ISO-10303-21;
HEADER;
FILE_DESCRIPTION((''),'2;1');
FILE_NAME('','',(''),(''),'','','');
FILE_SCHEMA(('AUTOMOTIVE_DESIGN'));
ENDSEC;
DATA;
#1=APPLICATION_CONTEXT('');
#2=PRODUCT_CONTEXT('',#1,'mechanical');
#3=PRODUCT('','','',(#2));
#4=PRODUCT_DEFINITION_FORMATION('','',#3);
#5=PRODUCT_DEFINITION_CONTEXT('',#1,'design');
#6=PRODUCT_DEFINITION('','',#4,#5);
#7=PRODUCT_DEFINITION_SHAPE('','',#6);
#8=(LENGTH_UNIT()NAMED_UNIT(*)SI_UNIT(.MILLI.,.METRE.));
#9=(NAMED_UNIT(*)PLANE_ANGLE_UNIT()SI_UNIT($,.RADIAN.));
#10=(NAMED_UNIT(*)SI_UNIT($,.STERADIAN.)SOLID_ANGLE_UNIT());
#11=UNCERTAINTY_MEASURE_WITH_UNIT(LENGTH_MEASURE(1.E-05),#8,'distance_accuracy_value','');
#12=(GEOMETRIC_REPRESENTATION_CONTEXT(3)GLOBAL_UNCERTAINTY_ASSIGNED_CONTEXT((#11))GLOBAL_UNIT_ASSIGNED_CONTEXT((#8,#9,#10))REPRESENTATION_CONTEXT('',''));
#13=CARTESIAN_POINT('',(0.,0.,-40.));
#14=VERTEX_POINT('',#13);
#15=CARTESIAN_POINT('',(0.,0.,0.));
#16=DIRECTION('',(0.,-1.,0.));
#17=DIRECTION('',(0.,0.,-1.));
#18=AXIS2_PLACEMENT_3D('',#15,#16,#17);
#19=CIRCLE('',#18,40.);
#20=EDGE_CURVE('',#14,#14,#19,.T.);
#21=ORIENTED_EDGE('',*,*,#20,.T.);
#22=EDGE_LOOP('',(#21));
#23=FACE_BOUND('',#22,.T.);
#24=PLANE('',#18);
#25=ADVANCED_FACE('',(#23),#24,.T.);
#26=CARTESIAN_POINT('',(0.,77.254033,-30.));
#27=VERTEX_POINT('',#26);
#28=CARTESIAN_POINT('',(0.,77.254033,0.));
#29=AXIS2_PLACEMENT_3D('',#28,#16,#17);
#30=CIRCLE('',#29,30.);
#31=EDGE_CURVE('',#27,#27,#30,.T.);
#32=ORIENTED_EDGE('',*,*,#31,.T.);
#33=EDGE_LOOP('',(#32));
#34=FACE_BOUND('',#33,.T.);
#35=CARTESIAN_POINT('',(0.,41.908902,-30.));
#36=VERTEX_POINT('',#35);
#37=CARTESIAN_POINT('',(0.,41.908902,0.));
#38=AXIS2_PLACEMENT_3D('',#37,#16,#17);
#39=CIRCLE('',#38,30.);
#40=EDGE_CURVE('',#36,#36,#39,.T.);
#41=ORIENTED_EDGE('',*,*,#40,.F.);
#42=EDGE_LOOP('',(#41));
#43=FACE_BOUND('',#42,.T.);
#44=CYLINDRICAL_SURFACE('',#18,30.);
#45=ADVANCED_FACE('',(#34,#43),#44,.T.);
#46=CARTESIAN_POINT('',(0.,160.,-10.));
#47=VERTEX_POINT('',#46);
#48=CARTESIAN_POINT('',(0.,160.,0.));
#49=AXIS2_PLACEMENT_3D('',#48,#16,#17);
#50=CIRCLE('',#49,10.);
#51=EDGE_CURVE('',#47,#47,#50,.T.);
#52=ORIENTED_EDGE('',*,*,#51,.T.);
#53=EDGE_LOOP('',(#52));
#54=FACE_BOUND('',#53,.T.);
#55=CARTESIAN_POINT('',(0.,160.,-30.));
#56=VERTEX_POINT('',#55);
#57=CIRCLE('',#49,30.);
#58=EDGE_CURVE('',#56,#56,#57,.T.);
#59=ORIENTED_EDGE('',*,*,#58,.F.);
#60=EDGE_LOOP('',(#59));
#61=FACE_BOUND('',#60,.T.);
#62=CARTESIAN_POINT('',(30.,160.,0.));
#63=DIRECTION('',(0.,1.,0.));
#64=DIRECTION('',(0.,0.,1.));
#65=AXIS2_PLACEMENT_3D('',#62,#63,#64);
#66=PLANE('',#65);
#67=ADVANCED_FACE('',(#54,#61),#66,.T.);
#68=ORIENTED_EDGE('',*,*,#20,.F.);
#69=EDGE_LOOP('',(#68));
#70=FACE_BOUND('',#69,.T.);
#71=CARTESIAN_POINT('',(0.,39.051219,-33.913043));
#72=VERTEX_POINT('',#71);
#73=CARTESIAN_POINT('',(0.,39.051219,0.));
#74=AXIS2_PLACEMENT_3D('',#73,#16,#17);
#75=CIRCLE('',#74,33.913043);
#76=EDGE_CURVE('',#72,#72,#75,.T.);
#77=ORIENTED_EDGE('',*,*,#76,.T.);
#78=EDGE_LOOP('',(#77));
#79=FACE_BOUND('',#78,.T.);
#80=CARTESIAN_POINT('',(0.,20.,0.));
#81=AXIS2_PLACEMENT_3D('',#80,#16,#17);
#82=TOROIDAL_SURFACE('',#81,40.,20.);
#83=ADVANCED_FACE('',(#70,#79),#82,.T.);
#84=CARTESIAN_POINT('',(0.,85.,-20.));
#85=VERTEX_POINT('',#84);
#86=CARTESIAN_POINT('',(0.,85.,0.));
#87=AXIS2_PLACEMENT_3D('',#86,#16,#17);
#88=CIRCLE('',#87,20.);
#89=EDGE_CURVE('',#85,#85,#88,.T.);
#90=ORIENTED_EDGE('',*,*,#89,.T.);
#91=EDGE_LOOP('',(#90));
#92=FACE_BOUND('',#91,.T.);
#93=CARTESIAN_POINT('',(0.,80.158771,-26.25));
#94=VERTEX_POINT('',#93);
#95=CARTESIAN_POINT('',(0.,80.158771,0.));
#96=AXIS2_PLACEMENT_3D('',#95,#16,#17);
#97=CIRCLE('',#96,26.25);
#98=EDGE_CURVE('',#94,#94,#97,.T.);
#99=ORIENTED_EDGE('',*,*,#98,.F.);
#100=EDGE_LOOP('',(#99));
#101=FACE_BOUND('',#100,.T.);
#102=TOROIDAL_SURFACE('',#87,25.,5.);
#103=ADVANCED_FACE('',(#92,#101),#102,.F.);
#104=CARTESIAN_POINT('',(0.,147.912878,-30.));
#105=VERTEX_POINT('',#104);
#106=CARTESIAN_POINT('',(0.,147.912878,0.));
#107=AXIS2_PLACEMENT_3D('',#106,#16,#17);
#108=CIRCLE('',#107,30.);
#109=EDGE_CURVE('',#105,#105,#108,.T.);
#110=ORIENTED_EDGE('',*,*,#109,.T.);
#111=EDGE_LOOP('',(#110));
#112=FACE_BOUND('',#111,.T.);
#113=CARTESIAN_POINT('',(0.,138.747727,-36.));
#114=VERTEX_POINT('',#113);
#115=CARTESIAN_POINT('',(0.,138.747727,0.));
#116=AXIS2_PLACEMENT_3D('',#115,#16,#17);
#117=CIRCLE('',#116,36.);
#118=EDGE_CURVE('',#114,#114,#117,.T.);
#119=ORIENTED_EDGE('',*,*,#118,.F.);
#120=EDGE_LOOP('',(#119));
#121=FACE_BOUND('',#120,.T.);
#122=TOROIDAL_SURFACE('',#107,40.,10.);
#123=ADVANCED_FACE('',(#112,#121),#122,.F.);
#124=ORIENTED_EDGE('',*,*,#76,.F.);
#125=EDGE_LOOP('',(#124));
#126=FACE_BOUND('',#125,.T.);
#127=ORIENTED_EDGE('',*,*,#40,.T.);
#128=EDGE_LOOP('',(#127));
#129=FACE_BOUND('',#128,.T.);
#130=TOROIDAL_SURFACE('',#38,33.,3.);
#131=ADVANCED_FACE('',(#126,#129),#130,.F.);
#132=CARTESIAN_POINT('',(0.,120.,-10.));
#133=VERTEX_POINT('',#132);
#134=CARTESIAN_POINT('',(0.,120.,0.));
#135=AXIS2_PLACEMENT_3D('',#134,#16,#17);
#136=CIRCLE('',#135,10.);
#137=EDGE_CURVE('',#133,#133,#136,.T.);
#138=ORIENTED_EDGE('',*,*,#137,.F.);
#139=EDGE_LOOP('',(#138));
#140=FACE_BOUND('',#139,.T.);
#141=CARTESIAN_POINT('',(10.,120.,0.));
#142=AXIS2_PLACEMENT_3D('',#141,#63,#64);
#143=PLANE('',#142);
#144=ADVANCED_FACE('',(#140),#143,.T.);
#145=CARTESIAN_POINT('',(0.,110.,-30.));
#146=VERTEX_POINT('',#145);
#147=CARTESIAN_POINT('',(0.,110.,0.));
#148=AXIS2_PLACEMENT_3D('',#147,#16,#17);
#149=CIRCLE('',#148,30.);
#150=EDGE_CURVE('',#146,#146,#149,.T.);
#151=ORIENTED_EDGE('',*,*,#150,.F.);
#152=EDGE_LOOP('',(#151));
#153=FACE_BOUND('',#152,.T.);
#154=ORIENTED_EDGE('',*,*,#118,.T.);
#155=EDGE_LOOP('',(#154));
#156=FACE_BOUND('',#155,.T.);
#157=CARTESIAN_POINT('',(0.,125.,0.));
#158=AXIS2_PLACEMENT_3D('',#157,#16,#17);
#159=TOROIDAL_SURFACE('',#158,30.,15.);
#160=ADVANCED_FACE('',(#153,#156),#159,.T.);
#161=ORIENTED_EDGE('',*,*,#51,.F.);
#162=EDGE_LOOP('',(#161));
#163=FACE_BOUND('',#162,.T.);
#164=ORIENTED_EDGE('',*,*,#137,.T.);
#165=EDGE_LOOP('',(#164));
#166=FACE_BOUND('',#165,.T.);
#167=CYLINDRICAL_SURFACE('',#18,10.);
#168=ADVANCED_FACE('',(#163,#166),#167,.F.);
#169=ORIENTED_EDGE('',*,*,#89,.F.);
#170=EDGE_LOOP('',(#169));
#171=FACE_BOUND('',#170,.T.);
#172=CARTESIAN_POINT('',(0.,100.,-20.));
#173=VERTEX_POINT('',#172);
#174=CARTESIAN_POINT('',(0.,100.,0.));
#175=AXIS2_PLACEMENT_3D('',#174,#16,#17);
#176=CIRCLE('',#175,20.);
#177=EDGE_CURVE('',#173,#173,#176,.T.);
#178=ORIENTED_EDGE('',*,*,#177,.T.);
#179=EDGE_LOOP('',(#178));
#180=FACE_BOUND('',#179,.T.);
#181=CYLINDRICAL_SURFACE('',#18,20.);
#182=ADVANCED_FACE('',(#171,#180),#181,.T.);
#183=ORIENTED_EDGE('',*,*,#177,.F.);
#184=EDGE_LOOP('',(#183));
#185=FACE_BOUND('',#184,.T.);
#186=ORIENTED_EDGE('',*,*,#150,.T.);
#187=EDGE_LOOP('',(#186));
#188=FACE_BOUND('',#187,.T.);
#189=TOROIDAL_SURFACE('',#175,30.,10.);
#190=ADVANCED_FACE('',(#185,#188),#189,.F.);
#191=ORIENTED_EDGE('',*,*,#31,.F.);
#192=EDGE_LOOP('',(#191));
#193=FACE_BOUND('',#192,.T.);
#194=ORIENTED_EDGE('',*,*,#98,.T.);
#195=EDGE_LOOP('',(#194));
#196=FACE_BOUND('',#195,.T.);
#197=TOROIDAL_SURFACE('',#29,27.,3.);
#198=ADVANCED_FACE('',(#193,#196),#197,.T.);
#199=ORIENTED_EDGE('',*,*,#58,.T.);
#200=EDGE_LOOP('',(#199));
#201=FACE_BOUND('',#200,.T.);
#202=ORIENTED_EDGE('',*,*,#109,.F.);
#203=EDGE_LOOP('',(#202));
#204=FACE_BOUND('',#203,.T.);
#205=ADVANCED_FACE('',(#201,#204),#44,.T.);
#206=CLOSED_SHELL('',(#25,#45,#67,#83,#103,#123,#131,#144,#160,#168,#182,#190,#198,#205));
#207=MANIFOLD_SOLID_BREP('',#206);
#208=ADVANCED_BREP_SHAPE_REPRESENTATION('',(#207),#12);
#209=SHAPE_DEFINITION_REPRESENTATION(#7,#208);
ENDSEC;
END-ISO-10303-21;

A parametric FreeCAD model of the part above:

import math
import FreeCAD as App
import Part
import Sketcher
Q = App.Units.Quantity

doc = App.newDocument("Part")
body = doc.addObject("PartDesign::Body", "Body")

# Sketch on XY plane
sketch1 = doc.addObject("Sketcher::SketchObject", "Sketch")
body.addObject(sketch1)
sketch1.AttachmentSupport = (doc.XY_Plane, [""])
sketch1.MapMode = "FlatFace"
sketch1.addGeometry(Part.LineSegment(App.Vector(0, 0, 0), App.Vector(40, 0, 0)), False)
sketch1.addGeometry(Part.ArcOfCircle(Part.Circle(App.Vector(40, 20, 0), App.Vector(0, 0, 1), 20), math.radians(-90), math.radians(108)), False)
sketch1.addGeometry(Part.ArcOfCircle(Part.Circle(App.Vector(33, 41.9, 0), App.Vector(0, 0, 1), 3), math.radians(180), math.radians(288)), False)
sketch1.addGeometry(Part.LineSegment(App.Vector(30, 41.9, 0), App.Vector(30, 77.3, 0)), False)
sketch1.addGeometry(Part.ArcOfCircle(Part.Circle(App.Vector(27, 77.3, 0), App.Vector(0, 0, 1), 3), math.radians(0), math.radians(104)), False)
sketch1.addGeometry(Part.ArcOfCircle(Part.Circle(App.Vector(25, 85, 0), App.Vector(0, 0, 1), 5), math.radians(-180), math.radians(-76)), False)
sketch1.addGeometry(Part.LineSegment(App.Vector(20, 85, 0), App.Vector(20, 100, 0)), False)
sketch1.addGeometry(Part.ArcOfCircle(Part.Circle(App.Vector(30, 100, 0), App.Vector(0, 0, 1), 10), math.radians(90), math.radians(180)), False)
sketch1.addGeometry(Part.ArcOfCircle(Part.Circle(App.Vector(30, 125, 0), App.Vector(0, 0, 1), 15), math.radians(-90), math.radians(66)), False)
sketch1.addGeometry(Part.ArcOfCircle(Part.Circle(App.Vector(40, 147.9, 0), App.Vector(0, 0, 1), 10), math.radians(-180), math.radians(-114)), False)
sketch1.addGeometry(Part.LineSegment(App.Vector(30, 147.9, 0), App.Vector(30, 160, 0)), False)
sketch1.addGeometry(Part.LineSegment(App.Vector(30, 160, 0), App.Vector(10, 160, 0)), False)
sketch1.addGeometry(Part.LineSegment(App.Vector(10, 160, 0), App.Vector(10, 120, 0)), False)
sketch1.addGeometry(Part.LineSegment(App.Vector(10, 120, 0), App.Vector(0, 120, 0)), False)
sketch1.addGeometry(Part.LineSegment(App.Vector(0, 120, 0), App.Vector(0, 0, 0)), False)
sketch1.addConstraint(Sketcher.Constraint("Tangent", 0, 2, 1, 1))
sketch1.addConstraint(Sketcher.Constraint("Tangent", 1, 2, 2, 2))
sketch1.addConstraint(Sketcher.Constraint("Tangent", 2, 1, 3, 1))
sketch1.addConstraint(Sketcher.Constraint("Tangent", 3, 2, 4, 1))
sketch1.addConstraint(Sketcher.Constraint("Tangent", 4, 2, 5, 2))
sketch1.addConstraint(Sketcher.Constraint("Tangent", 5, 1, 6, 1))
sketch1.addConstraint(Sketcher.Constraint("Tangent", 6, 2, 7, 2))
sketch1.addConstraint(Sketcher.Constraint("Tangent", 7, 1, 8, 1))
sketch1.addConstraint(Sketcher.Constraint("Tangent", 8, 2, 9, 2))
sketch1.addConstraint(Sketcher.Constraint("Tangent", 9, 1, 10, 1))
sketch1.addConstraint(Sketcher.Constraint("Coincident", 10, 2, 11, 1))
sketch1.addConstraint(Sketcher.Constraint("Coincident", 11, 2, 12, 1))
sketch1.addConstraint(Sketcher.Constraint("Coincident", 12, 2, 13, 1))
sketch1.addConstraint(Sketcher.Constraint("Coincident", 13, 2, 14, 1))
sketch1.addConstraint(Sketcher.Constraint("Coincident", 14, 2, 0, 1))
sketch1.addConstraint(Sketcher.Constraint("Horizontal", 0))
sketch1.addConstraint(Sketcher.Constraint("Vertical", 3))
sketch1.addConstraint(Sketcher.Constraint("Vertical", 6))
sketch1.addConstraint(Sketcher.Constraint("Vertical", 10))
sketch1.addConstraint(Sketcher.Constraint("Horizontal", 11))
sketch1.addConstraint(Sketcher.Constraint("Vertical", 12))
sketch1.addConstraint(Sketcher.Constraint("Horizontal", 13))
sketch1.addConstraint(Sketcher.Constraint("Vertical", 14))
sketch1.addConstraint(Sketcher.Constraint("Coincident", 14, 2, -1, 1))
sketch1.addConstraint(Sketcher.Constraint("Equal", 2, 4))
sketch1.addConstraint(Sketcher.Constraint("Equal", 7, 9))
sketch1.addConstraint(Sketcher.Constraint("Vertical", 7, 3, 8, 3))
sketch1.addConstraint(Sketcher.Constraint("Vertical", 1, 3, 9, 3))
sketch1.addConstraint(Sketcher.Constraint("Vertical", 8, 3, 2, 1))
sketch1.addConstraint(Sketcher.Constraint("Vertical", 7, 1, 9, 1))
sketch1.addConstraint(Sketcher.Constraint("Equal", 0, 12))
sketch1.addConstraint(Sketcher.Constraint("Radius", 1, Q("20 mm")))
sketch1.addConstraint(Sketcher.Constraint("Radius", 2, Q("3 mm")))
sketch1.addConstraint(Sketcher.Constraint("Radius", 5, Q("5 mm")))
sketch1.addConstraint(Sketcher.Constraint("Radius", 7, Q("10 mm")))
sketch1.addConstraint(Sketcher.Constraint("Radius", 8, Q("15 mm")))
sketch1.addConstraint(Sketcher.Constraint("DistanceX", 0, 1, 0, 2, Q("40 mm")))
sketch1.addConstraint(Sketcher.Constraint("DistanceX", 11, 2, 11, 1, Q("20 mm")))
sketch1.addConstraint(Sketcher.Constraint("DistanceY", 6, 1, 6, 2, Q("15 mm")))
sketch1.addConstraint(Sketcher.Constraint("DistanceY", 14, 2, 14, 1, Q("120 mm")))
sketch1.addConstraint(Sketcher.Constraint("DistanceY", -1, 1, 5, 3, Q("85 mm")))
revolution = doc.addObject("PartDesign::Revolution", "Revolution")
body.addObject(revolution)
revolution.Profile = sketch1
revolution.ReferenceAxis = (sketch1, ["V_Axis"])
revolution.Angle = 360

doc.recompute()
